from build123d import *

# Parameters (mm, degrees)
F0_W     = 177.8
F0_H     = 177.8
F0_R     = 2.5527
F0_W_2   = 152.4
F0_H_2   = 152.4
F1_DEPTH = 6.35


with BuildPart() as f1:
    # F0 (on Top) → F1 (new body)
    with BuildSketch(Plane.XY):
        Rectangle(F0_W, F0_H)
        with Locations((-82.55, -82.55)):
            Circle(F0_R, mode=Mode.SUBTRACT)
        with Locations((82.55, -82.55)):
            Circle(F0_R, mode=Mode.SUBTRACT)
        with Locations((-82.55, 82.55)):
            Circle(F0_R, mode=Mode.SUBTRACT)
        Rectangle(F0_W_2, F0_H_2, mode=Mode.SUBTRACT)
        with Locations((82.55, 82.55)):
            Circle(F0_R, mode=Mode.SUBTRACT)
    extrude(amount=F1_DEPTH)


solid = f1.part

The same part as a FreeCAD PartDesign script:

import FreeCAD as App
import Part
import Sketcher
from FreeCAD import Vector
Q = App.Units.Quantity

doc = App.newDocument("Part")
body = doc.addObject("PartDesign::Body", "Body")

# Sketch on XY plane
sketch1 = body.newObject("Sketcher::SketchObject", "Sketch")
sketch1.AttachmentSupport = (doc.getObject("XY_Plane"), [""])
sketch1.MapMode = "FlatFace"
sketch1.addGeometry([
    Part.LineSegment(Vector(-88.9, 88.9, 0), Vector(-88.9, -88.9, 0)),  # 0
    Part.LineSegment(Vector(-88.9, -88.9, 0), Vector(88.9, -88.9, 0)),  # 1
    Part.LineSegment(Vector(88.9, -88.9, 0), Vector(88.9, 88.9, 0)),  # 2
    Part.LineSegment(Vector(88.9, 88.9, 0), Vector(-88.9, 88.9, 0)),  # 3
    Part.Circle(Vector(-82.5, -82.5, 0), Vector(0, 0, 1), 2.6),  # 4
    Part.Circle(Vector(82.5, -82.5, 0), Vector(0, 0, 1), 2.6),  # 5
    Part.Circle(Vector(-82.5, 82.5, 0), Vector(0, 0, 1), 2.6),  # 6
    Part.LineSegment(Vector(76.2, -76.2, 0), Vector(-76.2, -76.2, 0)),  # 7
    Part.LineSegment(Vector(-76.2, -76.2, 0), Vector(-76.2, 76.2, 0)),  # 8
    Part.LineSegment(Vector(-76.2, 76.2, 0), Vector(76.2, 76.2, 0)),  # 9
    Part.LineSegment(Vector(76.2, 76.2, 0), Vector(76.2, -76.2, 0)),  # 10
    Part.Circle(Vector(82.5, 82.5, 0), Vector(0, 0, 1), 2.6),  # 11
], False)
sketch1.addConstraint([
    Sketcher.Constraint("Coincident", 0, 2, 1, 1),
    Sketcher.Constraint("Coincident", 1, 2, 2, 1),
    Sketcher.Constraint("Coincident", 2, 2, 3, 1),
    Sketcher.Constraint("Coincident", 3, 2, 0, 1),
    Sketcher.Constraint("Coincident", 7, 2, 8, 1),
    Sketcher.Constraint("Coincident", 8, 2, 9, 1),
    Sketcher.Constraint("Coincident", 9, 2, 10, 1),
    Sketcher.Constraint("Coincident", 10, 2, 7, 1),
    Sketcher.Constraint("Vertical", 0),
    Sketcher.Constraint("Horizontal", 1),
    Sketcher.Constraint("Vertical", 2),
    Sketcher.Constraint("Horizontal", 3),
    Sketcher.Constraint("Horizontal", 7),
    Sketcher.Constraint("Vertical", 8),
    Sketcher.Constraint("Horizontal", 9),
    Sketcher.Constraint("Vertical", 10),
    Sketcher.Constraint("Equal", 4, 5),
    Sketcher.Constraint("Equal", 5, 6),
    Sketcher.Constraint("Equal", 6, 11),
    Sketcher.Constraint("Symmetric", 5, 3, 6, 3, -1, 1),
    Sketcher.Constraint("Symmetric", 4, 3, 11, 3, -1, 1),
    Sketcher.Constraint("Symmetric", 0, 2, 2, 2, -1, 1),
    Sketcher.Constraint("Symmetric", 7, 2, 9, 2, -1, 1),
    Sketcher.Constraint("Symmetric", 4, 3, 5, 3, -2),
    Sketcher.Constraint("Equal", 3, 0),
    Sketcher.Constraint("Equal", 9, 8),
    Sketcher.Constraint("DistanceX", 1, 1, 1, 2, Q("7 in")),
    Sketcher.Constraint("DistanceX", 7, 2, 7, 1, Q("6 in")),
    Sketcher.Constraint("Diameter", 4, Q("0.201 in")),
    Sketcher.Constraint("DistanceX", 4, 3, 5, 3, Q("6.5 in")),
    Sketcher.Constraint("DistanceY", 4, 3, 6, 3, Q("6.5 in")),
])
pad1 = body.newObject("PartDesign::Pad", "Pad")
pad1.Profile = sketch1
pad1.Length = Q("0.25 in")

doc.recompute()
